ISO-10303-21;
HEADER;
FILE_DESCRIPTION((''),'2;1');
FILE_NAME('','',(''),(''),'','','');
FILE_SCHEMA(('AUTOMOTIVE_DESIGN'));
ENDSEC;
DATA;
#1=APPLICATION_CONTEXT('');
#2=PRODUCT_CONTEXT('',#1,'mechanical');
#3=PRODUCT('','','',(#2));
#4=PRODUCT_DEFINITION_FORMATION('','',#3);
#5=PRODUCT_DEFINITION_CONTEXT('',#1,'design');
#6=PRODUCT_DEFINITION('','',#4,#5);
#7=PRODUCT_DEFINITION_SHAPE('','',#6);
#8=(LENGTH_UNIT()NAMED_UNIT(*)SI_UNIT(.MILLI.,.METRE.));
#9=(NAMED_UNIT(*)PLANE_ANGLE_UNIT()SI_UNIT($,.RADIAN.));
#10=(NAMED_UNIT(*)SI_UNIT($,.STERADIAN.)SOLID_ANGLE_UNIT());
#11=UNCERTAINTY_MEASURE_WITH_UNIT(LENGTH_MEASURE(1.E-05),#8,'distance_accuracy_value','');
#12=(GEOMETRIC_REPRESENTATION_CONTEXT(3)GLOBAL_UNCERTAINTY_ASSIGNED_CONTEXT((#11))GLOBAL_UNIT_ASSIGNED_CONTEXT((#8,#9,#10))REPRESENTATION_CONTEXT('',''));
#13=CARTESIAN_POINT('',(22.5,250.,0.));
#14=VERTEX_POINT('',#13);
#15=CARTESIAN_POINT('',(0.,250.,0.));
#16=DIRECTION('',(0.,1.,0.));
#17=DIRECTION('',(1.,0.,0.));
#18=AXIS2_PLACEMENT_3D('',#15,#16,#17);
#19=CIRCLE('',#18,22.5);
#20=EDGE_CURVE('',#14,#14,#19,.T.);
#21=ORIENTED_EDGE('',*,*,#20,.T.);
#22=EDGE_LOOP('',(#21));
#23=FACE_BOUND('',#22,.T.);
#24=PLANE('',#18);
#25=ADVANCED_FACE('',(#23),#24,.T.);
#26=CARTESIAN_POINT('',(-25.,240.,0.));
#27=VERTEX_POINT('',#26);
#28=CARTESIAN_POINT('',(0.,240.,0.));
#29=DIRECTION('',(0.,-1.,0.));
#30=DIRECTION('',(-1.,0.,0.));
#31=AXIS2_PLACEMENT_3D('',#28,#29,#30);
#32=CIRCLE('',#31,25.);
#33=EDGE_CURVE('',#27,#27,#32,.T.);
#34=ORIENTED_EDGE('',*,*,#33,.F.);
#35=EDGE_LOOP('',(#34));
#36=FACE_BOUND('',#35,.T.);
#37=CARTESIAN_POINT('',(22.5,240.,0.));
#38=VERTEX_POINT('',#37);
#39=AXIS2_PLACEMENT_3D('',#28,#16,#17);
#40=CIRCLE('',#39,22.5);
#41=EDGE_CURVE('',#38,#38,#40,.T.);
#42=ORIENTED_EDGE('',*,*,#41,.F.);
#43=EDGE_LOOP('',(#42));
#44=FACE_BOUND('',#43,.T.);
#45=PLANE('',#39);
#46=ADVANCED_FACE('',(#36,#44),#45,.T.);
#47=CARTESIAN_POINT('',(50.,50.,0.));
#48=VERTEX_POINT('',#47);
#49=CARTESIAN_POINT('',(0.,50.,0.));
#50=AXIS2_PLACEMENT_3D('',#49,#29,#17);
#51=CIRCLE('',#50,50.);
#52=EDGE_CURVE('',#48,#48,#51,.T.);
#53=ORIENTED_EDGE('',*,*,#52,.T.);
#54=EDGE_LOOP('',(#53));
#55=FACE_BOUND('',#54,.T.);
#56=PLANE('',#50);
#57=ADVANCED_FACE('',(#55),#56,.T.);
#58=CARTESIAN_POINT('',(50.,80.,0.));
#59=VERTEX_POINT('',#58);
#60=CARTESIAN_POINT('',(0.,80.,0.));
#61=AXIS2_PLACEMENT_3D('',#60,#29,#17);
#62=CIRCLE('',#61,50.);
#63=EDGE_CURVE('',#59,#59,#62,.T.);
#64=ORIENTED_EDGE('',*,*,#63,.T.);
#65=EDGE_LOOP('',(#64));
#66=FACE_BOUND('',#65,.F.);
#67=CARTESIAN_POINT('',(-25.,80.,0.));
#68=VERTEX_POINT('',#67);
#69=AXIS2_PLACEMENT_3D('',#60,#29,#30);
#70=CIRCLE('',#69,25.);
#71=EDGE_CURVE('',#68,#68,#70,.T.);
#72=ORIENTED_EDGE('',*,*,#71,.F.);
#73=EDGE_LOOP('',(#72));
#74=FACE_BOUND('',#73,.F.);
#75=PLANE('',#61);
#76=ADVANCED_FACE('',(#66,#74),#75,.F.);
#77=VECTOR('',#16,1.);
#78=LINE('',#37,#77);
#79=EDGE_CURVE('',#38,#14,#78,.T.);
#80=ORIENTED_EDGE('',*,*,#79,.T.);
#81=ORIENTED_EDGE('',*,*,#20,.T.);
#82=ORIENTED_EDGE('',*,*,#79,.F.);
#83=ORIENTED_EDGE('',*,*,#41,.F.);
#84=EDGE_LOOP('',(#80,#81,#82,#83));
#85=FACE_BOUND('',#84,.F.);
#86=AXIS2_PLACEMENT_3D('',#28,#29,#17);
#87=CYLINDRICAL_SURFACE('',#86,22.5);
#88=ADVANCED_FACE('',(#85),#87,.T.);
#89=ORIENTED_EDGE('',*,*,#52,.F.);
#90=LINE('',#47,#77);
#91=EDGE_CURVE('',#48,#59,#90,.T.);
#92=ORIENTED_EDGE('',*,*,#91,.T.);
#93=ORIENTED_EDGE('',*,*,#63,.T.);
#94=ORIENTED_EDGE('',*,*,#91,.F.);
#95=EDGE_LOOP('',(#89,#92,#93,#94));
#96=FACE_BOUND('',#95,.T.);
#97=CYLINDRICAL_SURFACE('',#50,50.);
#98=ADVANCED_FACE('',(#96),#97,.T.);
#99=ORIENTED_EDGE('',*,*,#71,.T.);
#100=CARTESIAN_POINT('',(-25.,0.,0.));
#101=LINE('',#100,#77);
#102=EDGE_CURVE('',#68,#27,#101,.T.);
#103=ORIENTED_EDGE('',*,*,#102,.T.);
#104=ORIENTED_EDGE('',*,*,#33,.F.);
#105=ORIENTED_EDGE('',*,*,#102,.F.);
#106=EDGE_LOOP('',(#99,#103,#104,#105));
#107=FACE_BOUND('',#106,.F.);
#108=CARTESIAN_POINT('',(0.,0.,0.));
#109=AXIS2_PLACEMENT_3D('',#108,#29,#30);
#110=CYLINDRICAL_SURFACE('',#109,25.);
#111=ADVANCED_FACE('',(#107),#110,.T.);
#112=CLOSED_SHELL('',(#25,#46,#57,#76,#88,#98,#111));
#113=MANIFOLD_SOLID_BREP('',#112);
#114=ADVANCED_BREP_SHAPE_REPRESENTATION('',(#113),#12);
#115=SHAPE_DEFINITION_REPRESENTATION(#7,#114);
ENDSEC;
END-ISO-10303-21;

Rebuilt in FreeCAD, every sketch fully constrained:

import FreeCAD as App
import Part
import Sketcher
from FreeCAD import Vector
Q = App.Units.Quantity

doc = App.newDocument("Part")
body = doc.addObject("PartDesign::Body", "Body")

sketch1 = body.newObject("Sketcher::SketchObject", "Sketch")
sketch1.AttachmentSupport = (doc.getObject("XZ_Plane"), [""])
sketch1.MapMode = "FlatFace"
sketch1.addGeometry(Part.Circle(Vector(0, 0, 0), Vector(0, 0, 1), 25), False)
sketch1.addConstraint([
    Sketcher.Constraint("Coincident", 0, 3, -1, 1),
    Sketcher.Constraint("Diameter", 0, Q("50 mm")),
])
pad1 = body.newObject("PartDesign::Pad", "Pad")
pad1.Profile = sketch1
pad1.Length = 250
pad1.Reversed = True

sketch2 = body.newObject("Sketcher::SketchObject", "Sketch001")
sketch2.AttachmentSupport = (doc.getObject("XZ_Plane"), [""])
sketch2.MapMode = "FlatFace"
sketch2.AttachmentOffset = App.Placement(Vector(0, 0, -250), App.Rotation())
sketch2.addGeometry(Part.Circle(Vector(0, 0, 0), Vector(0, 0, 1), 25), False)
sketch2.addConstraint([
    Sketcher.Constraint("Coincident", 0, 3, -1, 1),
    Sketcher.Constraint("Diameter", 0, Q("50 mm")),
])
pocket1 = body.newObject("PartDesign::Pocket", "Pocket")
pocket1.Profile = sketch2
pocket1.Length = 10
pocket1.Reversed = True

sketch3 = body.newObject("Sketcher::SketchObject", "Sketch002")
sketch3.AttachmentSupport = (doc.getObject("XZ_Plane"), [""])
sketch3.MapMode = "FlatFace"
sketch3.AttachmentOffset = App.Placement(Vector(0, 0, -240), App.Rotation())
sketch3.addGeometry(Part.Circle(Vector(0, 0, 0), Vector(0, 0, 1), 22), False)
sketch3.addConstraint([
    Sketcher.Constraint("Coincident", 0, 3, -1, 1),
    Sketcher.Constraint("Diameter", 0, Q("45 mm")),
])
pad2 = body.newObject("PartDesign::Pad", "Pad001")
pad2.Profile = sketch3
pad2.Length = 10
pad2.Reversed = True

sketch4 = body.newObject("Sketcher::SketchObject", "Sketch003")
sketch4.AttachmentSupport = (doc.getObject("XZ_Plane"), [""])
sketch4.MapMode = "FlatFace"
sketch4.addGeometry(Part.Circle(Vector(0, 0, 0), Vector(0, 0, 1), 25), False)
sketch4.addConstraint([
    Sketcher.Constraint("Coincident", 0, 3, -1, 1),
    Sketcher.Constraint("Diameter", 0, Q("50 mm")),
])
pocket2 = body.newObject("PartDesign::Pocket", "Pocket001")
pocket2.Profile = sketch4
pocket2.Length = 50

sketch5 = body.newObject("Sketcher::SketchObject", "Sketch004")
sketch5.AttachmentSupport = (doc.getObject("XZ_Plane"), [""])
sketch5.MapMode = "FlatFace"
sketch5.AttachmentOffset = App.Placement(Vector(0, 0, -50), App.Rotation())
sketch5.addGeometry(Part.Circle(Vector(0, 0, 0), Vector(0, 0, 1), 50), False)
sketch5.addConstraint([
    Sketcher.Constraint("Coincident", 0, 3, -1, 1),
    Sketcher.Constraint("Diameter", 0, Q("100 mm")),
])
pad3 = body.newObject("PartDesign::Pad", "Pad002")
pad3.Profile = sketch5
pad3.Length = 30
pad3.Reversed = True

doc.recompute()
